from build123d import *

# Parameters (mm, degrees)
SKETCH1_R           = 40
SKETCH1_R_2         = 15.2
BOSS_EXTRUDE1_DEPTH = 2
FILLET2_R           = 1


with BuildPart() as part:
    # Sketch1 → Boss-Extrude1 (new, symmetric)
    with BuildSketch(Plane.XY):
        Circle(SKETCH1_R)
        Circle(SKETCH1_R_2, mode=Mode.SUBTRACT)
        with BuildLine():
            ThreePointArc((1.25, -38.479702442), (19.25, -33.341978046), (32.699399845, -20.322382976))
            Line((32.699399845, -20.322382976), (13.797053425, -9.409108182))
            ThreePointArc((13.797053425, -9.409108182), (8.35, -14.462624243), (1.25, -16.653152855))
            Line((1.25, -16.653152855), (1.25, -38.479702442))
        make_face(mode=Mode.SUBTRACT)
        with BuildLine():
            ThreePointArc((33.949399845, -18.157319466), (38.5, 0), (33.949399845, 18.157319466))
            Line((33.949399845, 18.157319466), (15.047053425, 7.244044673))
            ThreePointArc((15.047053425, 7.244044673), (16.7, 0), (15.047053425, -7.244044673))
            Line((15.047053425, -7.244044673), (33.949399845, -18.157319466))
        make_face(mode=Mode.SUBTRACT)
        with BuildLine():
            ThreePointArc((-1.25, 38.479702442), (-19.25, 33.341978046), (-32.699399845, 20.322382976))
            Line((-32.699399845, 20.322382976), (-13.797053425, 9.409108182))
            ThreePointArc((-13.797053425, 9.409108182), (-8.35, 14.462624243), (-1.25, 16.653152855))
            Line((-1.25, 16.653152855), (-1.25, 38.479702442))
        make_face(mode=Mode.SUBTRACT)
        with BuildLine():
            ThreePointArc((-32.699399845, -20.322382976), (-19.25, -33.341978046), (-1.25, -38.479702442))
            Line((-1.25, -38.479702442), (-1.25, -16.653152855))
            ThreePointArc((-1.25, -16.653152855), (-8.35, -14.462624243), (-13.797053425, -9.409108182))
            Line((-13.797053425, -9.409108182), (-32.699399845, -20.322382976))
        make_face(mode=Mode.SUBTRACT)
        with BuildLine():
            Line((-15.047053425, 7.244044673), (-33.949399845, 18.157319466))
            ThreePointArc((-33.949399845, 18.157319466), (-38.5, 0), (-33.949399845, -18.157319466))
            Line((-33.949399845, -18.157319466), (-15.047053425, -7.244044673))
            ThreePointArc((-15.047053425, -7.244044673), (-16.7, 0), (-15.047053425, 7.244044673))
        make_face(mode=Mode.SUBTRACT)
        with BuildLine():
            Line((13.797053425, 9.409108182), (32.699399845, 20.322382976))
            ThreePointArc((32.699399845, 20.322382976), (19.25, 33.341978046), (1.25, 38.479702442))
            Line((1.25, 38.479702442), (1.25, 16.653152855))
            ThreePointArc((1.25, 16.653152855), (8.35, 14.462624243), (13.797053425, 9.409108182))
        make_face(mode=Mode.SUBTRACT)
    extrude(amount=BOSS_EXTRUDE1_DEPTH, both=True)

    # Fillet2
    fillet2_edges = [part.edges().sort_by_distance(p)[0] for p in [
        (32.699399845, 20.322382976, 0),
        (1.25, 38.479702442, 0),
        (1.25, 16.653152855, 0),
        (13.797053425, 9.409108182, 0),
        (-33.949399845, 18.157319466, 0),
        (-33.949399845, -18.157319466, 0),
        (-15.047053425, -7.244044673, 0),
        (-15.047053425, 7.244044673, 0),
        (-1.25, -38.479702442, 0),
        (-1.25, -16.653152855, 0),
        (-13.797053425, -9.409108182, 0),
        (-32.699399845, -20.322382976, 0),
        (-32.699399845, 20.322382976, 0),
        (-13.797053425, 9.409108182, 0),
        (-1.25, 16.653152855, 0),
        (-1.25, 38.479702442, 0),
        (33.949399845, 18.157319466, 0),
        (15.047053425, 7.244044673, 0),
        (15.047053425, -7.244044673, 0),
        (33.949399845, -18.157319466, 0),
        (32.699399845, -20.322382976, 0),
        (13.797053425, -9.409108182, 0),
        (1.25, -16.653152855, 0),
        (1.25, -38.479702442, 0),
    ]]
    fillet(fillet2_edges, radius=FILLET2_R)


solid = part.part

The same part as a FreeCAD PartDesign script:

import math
import FreeCAD as App
import Part
import Sketcher
from FreeCAD import Vector
Q = App.Units.Quantity


def edges_at(feature, points):
    """Names of the edges that pass closest to the given points."""
    edges = feature.Shape.Edges
    near = lambda p: min(range(len(edges)), key=lambda i: edges[i].distToShape(Part.Vertex(*p))[0])
    return sorted({f"Edge{near(p) + 1}" for p in points})

doc = App.newDocument("Part")
body = doc.addObject("PartDesign::Body", "Body")

# Sketch on XY plane
sketch1 = body.newObject("Sketcher::SketchObject", "Sketch")
sketch1.AttachmentSupport = (doc.getObject("XY_Plane"), [""])
sketch1.MapMode = "FlatFace"
sketch1.addGeometry([
    Part.Circle(Vector(0, 0, 0), Vector(0, 0, 1), 40),  # 0
    Part.ArcOfCircle(Part.Circle(Vector(0, 0, 0), Vector(0, 0, 1), 39), math.radians(-148), math.radians(-92)),  # 1
    Part.LineSegment(Vector(-33, -20, 0), Vector(-14, -9, 0)),  # 2
    Part.ArcOfCircle(Part.Circle(Vector(0, 0, 0), Vector(0, 0, 1), 17), math.radians(-146), math.radians(-94)),  # 3
    Part.LineSegment(Vector(-1, -17, 0), Vector(-1, -38, 0)),  # 4
    Part.ArcOfCircle(Part.Circle(Vector(0, 0, 0), Vector(0, 0, 1), 39), math.radians(-88), math.radians(-32)),  # 5
    Part.LineSegment(Vector(1, -38, 0), Vector(1, -17, 0)),  # 6
    Part.ArcOfCircle(Part.Circle(Vector(0, 0, 0), Vector(0, 0, 1), 17), math.radians(-86), math.radians(-34)),  # 7
    Part.LineSegment(Vector(14, -9, 0), Vector(33, -20, 0)),  # 8
    Part.ArcOfCircle(Part.Circle(Vector(0, 0, 0), Vector(0, 0, 1), 39), math.radians(-28), math.radians(28)),  # 9
    Part.LineSegment(Vector(34, -18, 0), Vector(15, -7, 0)),  # 10
    Part.ArcOfCircle(Part.Circle(Vector(0, 0, 0), Vector(0, 0, 1), 17), math.radians(-26), math.radians(26)),  # 11
    Part.LineSegment(Vector(15, 7, 0), Vector(34, 18, 0)),  # 12
    Part.LineSegment(Vector(-34, 18, 0), Vector(-15, 7, 0)),  # 13
    Part.ArcOfCircle(Part.Circle(Vector(0, 0, 0), Vector(0, 0, 1), 17), math.radians(154), math.radians(206)),  # 14
    Part.LineSegment(Vector(-15, -7, 0), Vector(-34, -18, 0)),  # 15
    Part.ArcOfCircle(Part.Circle(Vector(0, 0, 0), Vector(0, 0, 1), 39), math.radians(152), math.radians(208)),  # 16
    Part.ArcOfCircle(Part.Circle(Vector(0, 0, 0), Vector(0, 0, 1), 39), math.radians(92), math.radians(148)),  # 17
    Part.LineSegment(Vector(-1, 38, 0), Vector(-1, 17, 0)),  # 18
    Part.ArcOfCircle(Part.Circle(Vector(0, 0, 0), Vector(0, 0, 1), 17), math.radians(94), math.radians(146)),  # 19
    Part.LineSegment(Vector(-14, 9, 0), Vector(-33, 20, 0)),  # 20
    Part.Circle(Vector(0, 0, 0), Vector(0, 0, 1), 15),  # 21
    Part.LineSegment(Vector(33, 20, 0), Vector(14, 9, 0)),  # 22
    Part.ArcOfCircle(Part.Circle(Vector(0, 0, 0), Vector(0, 0, 1), 17), math.radians(34), math.radians(86)),  # 23
    Part.LineSegment(Vector(1, 17, 0), Vector(1, 38, 0)),  # 24
    Part.ArcOfCircle(Part.Circle(Vector(0, 0, 0), Vector(0, 0, 1), 39), math.radians(32), math.radians(88)),  # 25
], False)
sketch1.addConstraint([
    Sketcher.Constraint("Coincident", 1, 1, 2, 1),
    Sketcher.Constraint("Coincident", 2, 2, 3, 1),
    Sketcher.Constraint("Coincident", 3, 2, 4, 1),
    Sketcher.Constraint("Coincident", 4, 2, 1, 2),
    Sketcher.Constraint("Coincident", 5, 1, 6, 1),
    Sketcher.Constraint("Coincident", 6, 2, 7, 1),
    Sketcher.Constraint("Coincident", 7, 2, 8, 1),
    Sketcher.Constraint("Coincident", 8, 2, 5, 2),
    Sketcher.Constraint("Coincident", 9, 1, 10, 1),
    Sketcher.Constraint("Coincident", 10, 2, 11, 1),
    Sketcher.Constraint("Coincident", 11, 2, 12, 1),
    Sketcher.Constraint("Coincident", 12, 2, 9, 2),
    Sketcher.Constraint("Coincident", 13, 2, 14, 1),
    Sketcher.Constraint("Coincident", 14, 2, 15, 1),
    Sketcher.Constraint("Coincident", 15, 2, 16, 2),
    Sketcher.Constraint("Coincident", 16, 1, 13, 1),
    Sketcher.Constraint("Coincident", 17, 1, 18, 1),
    Sketcher.Constraint("Coincident", 18, 2, 19, 1),
    Sketcher.Constraint("Coincident", 19, 2, 20, 1),
    Sketcher.Constraint("Coincident", 20, 2, 17, 2),
    Sketcher.Constraint("Coincident", 22, 2, 23, 1),
    Sketcher.Constraint("Coincident", 23, 2, 24, 1),
    Sketcher.Constraint("Coincident", 24, 2, 25, 2),
    Sketcher.Constraint("Coincident", 25, 1, 22, 1),
    Sketcher.Constraint("Vertical", 4),
    Sketcher.Constraint("Vertical", 6),
    Sketcher.Constraint("Vertical", 18),
    Sketcher.Constraint("Vertical", 24),
    Sketcher.Constraint("Coincident", 0, 3, -1, 1),
    Sketcher.Constraint("Coincident", 1, 3, -1, 1),
    Sketcher.Constraint("Coincident", 3, 3, -1, 1),
    Sketcher.Constraint("Coincident", 5, 3, -1, 1),
    Sketcher.Constraint("Coincident", 7, 3, -1, 1),
    Sketcher.Constraint("Coincident", 9, 3, -1, 1),
    Sketcher.Constraint("Coincident", 11, 3, -1, 1),
    Sketcher.Constraint("Coincident", 14, 3, -1, 1),
    Sketcher.Constraint("Coincident", 16, 3, -1, 1),
    Sketcher.Constraint("Coincident", 17, 3, -1, 1),
    Sketcher.Constraint("Coincident", 19, 3, -1, 1),
    Sketcher.Constraint("Coincident", 21, 3, -1, 1),
    Sketcher.Constraint("Coincident", 23, 3, -1, 1),
    Sketcher.Constraint("Coincident", 25, 3, -1, 1),
    Sketcher.Constraint("Equal", 1, 5),
    Sketcher.Constraint("Equal", 3, 7),
    Sketcher.Constraint("Equal", 5, 9),
    Sketcher.Constraint("Equal", 7, 11),
    Sketcher.Constraint("Equal", 11, 14),
    Sketcher.Constraint("Equal", 9, 16),
    Sketcher.Constraint("Equal", 16, 17),
    Sketcher.Constraint("Equal", 14, 19),
    Sketcher.Constraint("Equal", 19, 23),
    Sketcher.Constraint("Equal", 17, 25),
    Sketcher.Constraint("Parallel", 8, 10),
    Sketcher.Constraint("Parallel", 2, 12),
    Sketcher.Constraint("Parallel", 10, 13),
    Sketcher.Constraint("Parallel", 12, 15),
    Sketcher.Constraint("Parallel", 13, 20),
    Sketcher.Constraint("Parallel", 15, 22),
    Sketcher.Constraint("Horizontal", 4, 2, 5, 1),
    Sketcher.Constraint("Horizontal", 2, 2, 7, 2),
    Sketcher.Constraint("Horizontal", 1, 1, 8, 2),
    Sketcher.Constraint("Horizontal", 11, 2, 13, 2),
    Sketcher.Constraint("Horizontal", 10, 2, 14, 2),
    Sketcher.Constraint("Horizontal", 19, 2, 22, 2),
    Sketcher.Constraint("Horizontal", 18, 2, 23, 2),
    Sketcher.Constraint("Vertical", 10, 2, 11, 2),
    Sketcher.Constraint("Vertical", 4, 2, 17, 1),
    Sketcher.Constraint("Vertical", 2, 2, 19, 2),
    Sketcher.Constraint("Equal", 8, 10),
    Sketcher.Constraint("Diameter", 0, Q("80 mm")),
    Sketcher.Constraint("Diameter", 21, Q("30.4 mm")),
    Sketcher.Constraint("Radius", 1, Q("38.5 mm")),
    Sketcher.Constraint("Radius", 3, Q("16.7 mm")),
    Sketcher.Constraint("Angle", 2, Q("30 deg")),
    Sketcher.Constraint("DistanceX", 4, 2, 5, 1, Q("2.5 mm")),
    Sketcher.Constraint("DistanceX", 8, 2, 9, 1, Q("1.25 mm")),
])
pad1 = body.newObject("PartDesign::Pad", "Pad")
pad1.Profile = sketch1
pad1.Length = 4
pad1.Midplane = True
doc.recompute()

fillet = body.newObject("PartDesign::Fillet", "Fillet")
fillet.Base = (pad1, edges_at(pad1, [
    (32.699, 20.322, 0),
    (1.25, 38.48, 0),
    (1.25, 16.653, 0),
    (13.797, 9.409, 0),
    (-33.949, 18.157, 0),
    (-33.949, -18.157, 0),
    (-15.047, -7.244, 0),
    (-15.047, 7.244, 0),
    (-1.25, -38.48, 0),
    (-1.25, -16.653, 0),
    (-13.797, -9.409, 0),
    (-32.699, -20.322, 0),
    (-32.699, 20.322, 0),
    (-13.797, 9.409, 0),
    (-1.25, 16.653, 0),
    (-1.25, 38.48, 0),
    (33.949, 18.157, 0),
    (15.047, 7.244, 0),
    (15.047, -7.244, 0),
    (33.949, -18.157, 0),
    (32.699, -20.322, 0),
    (13.797, -9.409, 0),
    (1.25, -16.653, 0),
    (1.25, -38.48, 0),
]))
fillet.Radius = 1

doc.recompute()
